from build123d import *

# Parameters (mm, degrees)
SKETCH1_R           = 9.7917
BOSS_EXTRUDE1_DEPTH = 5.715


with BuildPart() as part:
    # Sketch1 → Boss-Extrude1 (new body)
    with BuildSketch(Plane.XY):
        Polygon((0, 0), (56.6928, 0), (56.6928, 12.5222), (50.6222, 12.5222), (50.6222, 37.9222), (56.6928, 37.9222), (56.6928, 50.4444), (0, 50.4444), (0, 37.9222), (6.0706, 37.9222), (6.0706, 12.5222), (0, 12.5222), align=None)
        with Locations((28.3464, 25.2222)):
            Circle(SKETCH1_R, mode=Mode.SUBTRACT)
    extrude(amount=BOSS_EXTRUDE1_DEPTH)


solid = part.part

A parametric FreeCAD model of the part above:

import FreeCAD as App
import Part
import Sketcher
from FreeCAD import Vector
Q = App.Units.Quantity

doc = App.newDocument("Part")
body = doc.addObject("PartDesign::Body", "Body")

sketch1 = doc.addObject("Sketcher::SketchObject", "Sketch")
body.addObject(sketch1)
sketch1.AttachmentSupport = (doc.XY_Plane, [""])
sketch1.MapMode = "FlatFace"
sketch1.addGeometry([
    Part.LineSegment(Vector(0, 0, 0), Vector(57, 0, 0)),
    Part.LineSegment(Vector(57, 0, 0), Vector(57, 13, 0)),
    Part.LineSegment(Vector(57, 13, 0), Vector(51, 13, 0)),
    Part.LineSegment(Vector(51, 13, 0), Vector(51, 38, 0)),
    Part.LineSegment(Vector(51, 38, 0), Vector(57, 38, 0)),
    Part.LineSegment(Vector(57, 38, 0), Vector(57, 50, 0)),
    Part.LineSegment(Vector(57, 50, 0), Vector(0, 50, 0)),
    Part.LineSegment(Vector(0, 50, 0), Vector(0, 38, 0)),
    Part.LineSegment(Vector(0, 38, 0), Vector(6, 38, 0)),
    Part.LineSegment(Vector(6, 38, 0), Vector(6, 13, 0)),
    Part.LineSegment(Vector(6, 13, 0), Vector(0, 13, 0)),
    Part.LineSegment(Vector(0, 13, 0), Vector(0, 0, 0)),
    Part.Circle(Vector(28, 25, 0), Vector(0, 0, 1), 10),
], False)
sketch1.addConstraint([
    Sketcher.Constraint("Coincident", 0, 2, 1, 1),
    Sketcher.Constraint("Coincident", 1, 2, 2, 1),
    Sketcher.Constraint("Coincident", 2, 2, 3, 1),
    Sketcher.Constraint("Coincident", 3, 2, 4, 1),
    Sketcher.Constraint("Coincident", 4, 2, 5, 1),
    Sketcher.Constraint("Coincident", 5, 2, 6, 1),
    Sketcher.Constraint("Coincident", 6, 2, 7, 1),
    Sketcher.Constraint("Coincident", 7, 2, 8, 1),
    Sketcher.Constraint("Coincident", 8, 2, 9, 1),
    Sketcher.Constraint("Coincident", 9, 2, 10, 1),
    Sketcher.Constraint("Coincident", 10, 2, 11, 1),
    Sketcher.Constraint("Coincident", 11, 2, 0, 1),
    Sketcher.Constraint("Horizontal", 0),
    Sketcher.Constraint("Vertical", 1),
    Sketcher.Constraint("Horizontal", 2),
    Sketcher.Constraint("Vertical", 3),
    Sketcher.Constraint("Horizontal", 4),
    Sketcher.Constraint("Vertical", 5),
    Sketcher.Constraint("Horizontal", 6),
    Sketcher.Constraint("Vertical", 7),
    Sketcher.Constraint("Horizontal", 8),
    Sketcher.Constraint("Vertical", 9),
    Sketcher.Constraint("Horizontal", 10),
    Sketcher.Constraint("Vertical", 11),
    Sketcher.Constraint("Coincident", 11, 2, -1, 1),
    Sketcher.Constraint("PointOnObject", 6, 2, -2),
    Sketcher.Constraint("Horizontal", 4, 2, 7, 2),
    Sketcher.Constraint("Horizontal", 2, 2, 9, 2),
    Sketcher.Constraint("Vertical", 1, 2, 4, 2),
    Sketcher.Constraint("Equal", 4, 8),
    Sketcher.Constraint("Equal", 1, 5),
    Sketcher.Constraint("DistanceY", 3, 1, 3, 2, Q("1 in")),
    Sketcher.Constraint("Diameter", 12, Q("0.771 in")),
    Sketcher.Constraint("DistanceY", 1, 2, 12, 3, Q("0.5 in")),
    Sketcher.Constraint("DistanceX", 0, 1, 0, 2, Q("2.232 in")),
    Sketcher.Constraint("DistanceX", 2, 2, 2, 1, Q("0.239 in")),
    Sketcher.Constraint("DistanceY", 1, 1, 1, 2, Q("0.493 in")),
    Sketcher.Constraint("DistanceX", -1, 1, 12, 3, Q("1.116 in")),
])
pad1 = doc.addObject("PartDesign::Pad", "Pad")
body.addObject(pad1)
pad1.Profile = sketch1
pad1.Length = Q("0.225 in")

doc.recompute()
